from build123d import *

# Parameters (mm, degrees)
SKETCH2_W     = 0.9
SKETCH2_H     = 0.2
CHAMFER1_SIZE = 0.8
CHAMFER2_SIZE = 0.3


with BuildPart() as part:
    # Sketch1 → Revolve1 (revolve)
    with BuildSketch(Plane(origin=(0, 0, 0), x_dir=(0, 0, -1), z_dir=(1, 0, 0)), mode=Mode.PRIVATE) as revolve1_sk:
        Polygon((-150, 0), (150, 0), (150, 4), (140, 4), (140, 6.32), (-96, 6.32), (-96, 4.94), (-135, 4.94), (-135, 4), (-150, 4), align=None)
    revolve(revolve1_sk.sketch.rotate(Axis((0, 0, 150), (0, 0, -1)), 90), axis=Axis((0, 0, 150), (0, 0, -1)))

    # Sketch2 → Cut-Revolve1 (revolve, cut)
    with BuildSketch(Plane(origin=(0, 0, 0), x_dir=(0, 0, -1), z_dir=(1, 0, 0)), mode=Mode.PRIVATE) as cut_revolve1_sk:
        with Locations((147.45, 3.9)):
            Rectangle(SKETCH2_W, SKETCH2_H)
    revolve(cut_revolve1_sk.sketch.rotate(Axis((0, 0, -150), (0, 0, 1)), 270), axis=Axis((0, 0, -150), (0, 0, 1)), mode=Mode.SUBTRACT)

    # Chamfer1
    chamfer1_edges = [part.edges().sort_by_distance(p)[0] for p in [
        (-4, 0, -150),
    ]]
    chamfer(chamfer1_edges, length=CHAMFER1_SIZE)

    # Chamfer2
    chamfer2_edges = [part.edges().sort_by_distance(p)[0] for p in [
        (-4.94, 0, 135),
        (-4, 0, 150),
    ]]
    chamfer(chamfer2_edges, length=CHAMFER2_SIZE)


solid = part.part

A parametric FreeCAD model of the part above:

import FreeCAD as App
import Part
import Sketcher
Q = App.Units.Quantity


def edges_at(feature, points):
    """Names of the edges that pass closest to the given points."""
    edges = feature.Shape.Edges
    near = lambda p: min(range(len(edges)), key=lambda i: edges[i].distToShape(Part.Vertex(*p))[0])
    return sorted({f"Edge{near(p) + 1}" for p in points})


def add_polygon(sketch, points):
    """Adds a closed chain of lines whose ends are joined by coincident constraints."""
    first, n = sketch.GeometryCount, len(points)
    for a, b in zip(points, points[1:] + points[:1]):
        sketch.addGeometry(Part.LineSegment(App.Vector(*a, 0), App.Vector(*b, 0)), False)
    for i in range(n):
        sketch.addConstraint(Sketcher.Constraint("Coincident", first + i, 2, first + (i + 1) % n, 1))

doc = App.newDocument("Part")
body = doc.addObject("PartDesign::Body", "Body")

sketch1 = body.newObject("Sketcher::SketchObject", "Sketch")
sketch1.AttachmentSupport = (doc.getObject("YZ_Plane"), [""])
sketch1.MapMode = "FlatFace"
add_polygon(sketch1, [(0, 150), (0, -150), (4, -150), (4, -140), (6.3, -140), (6.3, 96), (4.9, 96), (4.9, 135), (4, 135), (4, 150)])
sketch1.addConstraint(Sketcher.Constraint("Vertical", 0))
sketch1.addConstraint(Sketcher.Constraint("Horizontal", 1))
sketch1.addConstraint(Sketcher.Constraint("Vertical", 2))
sketch1.addConstraint(Sketcher.Constraint("Horizontal", 3))
sketch1.addConstraint(Sketcher.Constraint("Vertical", 4))
sketch1.addConstraint(Sketcher.Constraint("Horizontal", 5))
sketch1.addConstraint(Sketcher.Constraint("Vertical", 6))
sketch1.addConstraint(Sketcher.Constraint("Horizontal", 7))
sketch1.addConstraint(Sketcher.Constraint("Vertical", 8))
sketch1.addConstraint(Sketcher.Constraint("Horizontal", 9))
sketch1.addConstraint(Sketcher.Constraint("Symmetric", 0, 2, 9, 2, -1, 1))
sketch1.addConstraint(Sketcher.Constraint("Vertical", 2, 2, 7, 2))
sketch1.addConstraint(Sketcher.Constraint("DistanceX", 1, 1, 1, 2, Q("4 mm")))
sketch1.addConstraint(Sketcher.Constraint("DistanceY", 0, 2, 0, 1, Q("300 mm")))
sketch1.addConstraint(Sketcher.Constraint("DistanceY", 2, 1, 2, 2, Q("10 mm")))
sketch1.addConstraint(Sketcher.Constraint("DistanceY", 4, 1, 4, 2, Q("236 mm")))
sketch1.addConstraint(Sketcher.Constraint("DistanceY", 6, 1, 6, 2, Q("39 mm")))
sketch1.addConstraint(Sketcher.Constraint("DistanceX", 3, 1, 3, 2, Q("2.32 mm")))
sketch1.addConstraint(Sketcher.Constraint("DistanceX", 5, 2, 5, 1, Q("1.38 mm")))
revolution = body.newObject("PartDesign::Revolution", "Revolution")
revolution.Profile = sketch1
revolution.ReferenceAxis = (sketch1, ["V_Axis"])
revolution.Angle = 360

sketch2 = body.newObject("Sketcher::SketchObject", "Sketch001")
sketch2.AttachmentSupport = (doc.getObject("YZ_Plane"), [""])
sketch2.MapMode = "FlatFace"
add_polygon(sketch2, [(4, -147), (3.8, -147), (3.8, -147.9), (4, -147.9)])
sketch2.addConstraint(Sketcher.Constraint("Horizontal", 0))
sketch2.addConstraint(Sketcher.Constraint("Vertical", 1))
sketch2.addConstraint(Sketcher.Constraint("Horizontal", 2))
sketch2.addConstraint(Sketcher.Constraint("Vertical", 3))
sketch2.addConstraint(Sketcher.Constraint("DistanceX", 0, 2, 0, 1, Q("0.2 mm")))
sketch2.addConstraint(Sketcher.Constraint("DistanceY", 1, 2, 1, 1, Q("0.9 mm")))
sketch2.addConstraint(Sketcher.Constraint("DistanceY", 0, 2, -1, 1, Q("147 mm")))
sketch2.addConstraint(Sketcher.Constraint("DistanceX", -1, 1, 2, 2, Q("4 mm")))
groove = body.newObject("PartDesign::Groove", "Groove")
groove.Profile = sketch2
groove.ReferenceAxis = (sketch2, ["V_Axis"])
groove.Angle = 360
doc.recompute()

chamfer = body.newObject("PartDesign::Chamfer", "Chamfer")
chamfer.Base = (groove, edges_at(groove, [(-4, 0, -150)]))
chamfer.Size = 0.8
doc.recompute()

chamfer2 = body.newObject("PartDesign::Chamfer", "Chamfer001")
chamfer2.Base = (chamfer, edges_at(chamfer, [(-4.94, 0, 135), (-4, 0, 150)]))
chamfer2.Size = 0.3

doc.recompute()
